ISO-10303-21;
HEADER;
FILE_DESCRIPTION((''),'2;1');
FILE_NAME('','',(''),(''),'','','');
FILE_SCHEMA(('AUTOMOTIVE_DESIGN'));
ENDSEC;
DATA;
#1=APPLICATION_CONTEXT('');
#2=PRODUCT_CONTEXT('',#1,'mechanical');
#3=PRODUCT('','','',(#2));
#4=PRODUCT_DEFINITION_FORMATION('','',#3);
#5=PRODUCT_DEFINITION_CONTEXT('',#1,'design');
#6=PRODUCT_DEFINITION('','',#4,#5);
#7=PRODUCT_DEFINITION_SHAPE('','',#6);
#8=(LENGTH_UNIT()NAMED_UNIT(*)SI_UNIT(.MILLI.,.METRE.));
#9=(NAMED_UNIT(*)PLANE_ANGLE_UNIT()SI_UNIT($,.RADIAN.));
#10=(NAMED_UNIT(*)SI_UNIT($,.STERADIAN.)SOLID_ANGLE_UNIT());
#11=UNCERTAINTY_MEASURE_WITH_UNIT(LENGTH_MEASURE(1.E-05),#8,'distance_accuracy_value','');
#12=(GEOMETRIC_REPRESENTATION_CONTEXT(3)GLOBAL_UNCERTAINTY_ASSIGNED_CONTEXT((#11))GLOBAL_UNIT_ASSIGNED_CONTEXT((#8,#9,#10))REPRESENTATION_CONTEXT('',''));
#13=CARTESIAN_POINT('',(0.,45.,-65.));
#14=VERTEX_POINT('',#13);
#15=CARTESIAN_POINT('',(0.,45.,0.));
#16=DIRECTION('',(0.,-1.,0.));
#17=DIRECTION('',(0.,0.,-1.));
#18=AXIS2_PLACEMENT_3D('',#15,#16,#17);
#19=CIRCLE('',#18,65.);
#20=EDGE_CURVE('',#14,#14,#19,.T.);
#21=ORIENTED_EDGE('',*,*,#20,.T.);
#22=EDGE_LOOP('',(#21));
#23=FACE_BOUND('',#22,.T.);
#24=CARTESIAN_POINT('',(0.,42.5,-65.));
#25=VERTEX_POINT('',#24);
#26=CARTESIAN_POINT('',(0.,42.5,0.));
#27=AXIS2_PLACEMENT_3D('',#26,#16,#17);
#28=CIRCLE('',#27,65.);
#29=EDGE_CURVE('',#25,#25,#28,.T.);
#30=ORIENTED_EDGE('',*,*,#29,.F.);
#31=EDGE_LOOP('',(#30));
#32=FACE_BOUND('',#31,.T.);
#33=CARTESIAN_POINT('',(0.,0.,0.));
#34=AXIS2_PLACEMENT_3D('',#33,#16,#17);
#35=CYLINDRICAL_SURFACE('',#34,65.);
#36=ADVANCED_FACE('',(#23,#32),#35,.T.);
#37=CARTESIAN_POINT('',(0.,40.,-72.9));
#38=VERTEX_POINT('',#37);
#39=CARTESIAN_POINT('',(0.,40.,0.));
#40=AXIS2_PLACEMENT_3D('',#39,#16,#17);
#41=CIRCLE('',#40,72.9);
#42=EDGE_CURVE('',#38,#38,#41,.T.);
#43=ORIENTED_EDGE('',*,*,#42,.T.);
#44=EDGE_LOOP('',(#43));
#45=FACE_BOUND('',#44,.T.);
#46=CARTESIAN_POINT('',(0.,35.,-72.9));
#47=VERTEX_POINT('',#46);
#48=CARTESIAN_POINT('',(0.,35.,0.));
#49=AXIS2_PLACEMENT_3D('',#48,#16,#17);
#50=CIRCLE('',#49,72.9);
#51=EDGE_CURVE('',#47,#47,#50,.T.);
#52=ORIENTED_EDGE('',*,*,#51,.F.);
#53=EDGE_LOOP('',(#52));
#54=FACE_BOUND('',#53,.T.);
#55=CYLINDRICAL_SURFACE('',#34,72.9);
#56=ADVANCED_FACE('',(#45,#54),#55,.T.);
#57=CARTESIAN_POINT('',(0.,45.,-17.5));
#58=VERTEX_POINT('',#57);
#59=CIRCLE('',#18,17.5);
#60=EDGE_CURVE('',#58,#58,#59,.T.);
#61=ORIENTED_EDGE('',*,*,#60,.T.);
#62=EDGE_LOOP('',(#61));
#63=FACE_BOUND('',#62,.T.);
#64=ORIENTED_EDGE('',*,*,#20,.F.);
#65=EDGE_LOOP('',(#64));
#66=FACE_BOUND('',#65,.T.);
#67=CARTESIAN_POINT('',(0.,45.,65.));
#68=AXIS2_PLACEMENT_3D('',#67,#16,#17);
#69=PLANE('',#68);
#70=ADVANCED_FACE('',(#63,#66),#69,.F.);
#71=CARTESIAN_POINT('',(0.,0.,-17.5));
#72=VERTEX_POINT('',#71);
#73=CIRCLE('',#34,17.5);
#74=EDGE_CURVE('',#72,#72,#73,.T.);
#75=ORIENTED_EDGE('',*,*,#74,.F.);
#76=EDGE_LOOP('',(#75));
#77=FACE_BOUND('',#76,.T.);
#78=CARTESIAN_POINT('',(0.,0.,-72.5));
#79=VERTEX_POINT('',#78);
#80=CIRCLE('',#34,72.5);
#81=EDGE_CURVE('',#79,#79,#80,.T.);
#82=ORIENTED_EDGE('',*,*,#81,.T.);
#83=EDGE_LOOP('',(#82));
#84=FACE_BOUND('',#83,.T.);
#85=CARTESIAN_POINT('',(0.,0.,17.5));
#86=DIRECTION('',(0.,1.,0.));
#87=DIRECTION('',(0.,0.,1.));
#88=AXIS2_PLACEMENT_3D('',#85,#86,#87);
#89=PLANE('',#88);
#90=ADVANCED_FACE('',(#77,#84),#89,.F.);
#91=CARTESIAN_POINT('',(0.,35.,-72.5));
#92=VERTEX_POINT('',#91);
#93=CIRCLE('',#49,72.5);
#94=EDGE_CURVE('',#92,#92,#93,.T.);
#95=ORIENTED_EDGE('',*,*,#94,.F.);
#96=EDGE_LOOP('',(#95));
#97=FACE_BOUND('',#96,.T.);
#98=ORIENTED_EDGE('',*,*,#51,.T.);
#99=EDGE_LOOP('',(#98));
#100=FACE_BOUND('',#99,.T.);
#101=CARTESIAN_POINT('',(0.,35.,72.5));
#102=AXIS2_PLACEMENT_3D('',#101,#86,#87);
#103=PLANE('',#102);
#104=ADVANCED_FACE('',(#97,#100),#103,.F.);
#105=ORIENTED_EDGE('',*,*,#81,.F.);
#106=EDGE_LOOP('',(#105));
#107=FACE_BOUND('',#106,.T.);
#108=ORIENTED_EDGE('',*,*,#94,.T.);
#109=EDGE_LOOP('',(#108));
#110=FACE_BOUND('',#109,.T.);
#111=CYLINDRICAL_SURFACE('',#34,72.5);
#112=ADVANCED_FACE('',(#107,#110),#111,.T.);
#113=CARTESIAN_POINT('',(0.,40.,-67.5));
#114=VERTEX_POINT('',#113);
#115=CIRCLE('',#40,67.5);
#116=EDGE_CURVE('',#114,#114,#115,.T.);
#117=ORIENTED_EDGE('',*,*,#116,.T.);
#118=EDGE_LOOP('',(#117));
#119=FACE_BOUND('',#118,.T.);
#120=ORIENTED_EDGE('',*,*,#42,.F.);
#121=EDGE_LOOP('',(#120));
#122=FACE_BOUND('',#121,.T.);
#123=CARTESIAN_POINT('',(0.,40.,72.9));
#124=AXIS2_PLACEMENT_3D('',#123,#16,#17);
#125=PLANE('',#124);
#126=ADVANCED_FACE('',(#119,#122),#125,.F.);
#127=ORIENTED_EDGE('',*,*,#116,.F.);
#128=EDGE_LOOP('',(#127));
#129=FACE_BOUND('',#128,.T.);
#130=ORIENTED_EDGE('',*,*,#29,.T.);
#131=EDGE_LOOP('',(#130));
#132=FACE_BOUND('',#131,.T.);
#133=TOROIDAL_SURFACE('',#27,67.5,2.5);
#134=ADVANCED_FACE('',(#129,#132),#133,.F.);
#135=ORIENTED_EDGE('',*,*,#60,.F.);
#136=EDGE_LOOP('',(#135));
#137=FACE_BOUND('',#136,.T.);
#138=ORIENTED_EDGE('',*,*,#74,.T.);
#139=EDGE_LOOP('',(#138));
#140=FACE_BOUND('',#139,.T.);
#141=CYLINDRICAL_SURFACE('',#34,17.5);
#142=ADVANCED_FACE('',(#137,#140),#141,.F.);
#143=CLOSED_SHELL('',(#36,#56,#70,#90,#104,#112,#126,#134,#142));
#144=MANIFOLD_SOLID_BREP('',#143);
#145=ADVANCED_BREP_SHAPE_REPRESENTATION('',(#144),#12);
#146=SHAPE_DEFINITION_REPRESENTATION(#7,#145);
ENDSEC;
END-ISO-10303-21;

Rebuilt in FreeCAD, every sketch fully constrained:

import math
import FreeCAD as App
import Part
import Sketcher
from FreeCAD import Vector

doc = App.newDocument("Part")
body = doc.addObject("PartDesign::Body", "Body")

# Sketch on YZ plane
sketch1 = doc.addObject("Sketcher::SketchObject", "Sketch")
body.addObject(sketch1)
sketch1.AttachmentSupport = (doc.YZ_Plane, [""])
sketch1.MapMode = "FlatFace"
sketch1.addGeometry([
    Part.LineSegment(Vector(0, 17.5, 0), Vector(45, 17.5, 0)),  # 0
    Part.LineSegment(Vector(45, 17.5, 0), Vector(45, 65, 0)),  # 1
    Part.LineSegment(Vector(45, 65, 0), Vector(42.5, 65, 0)),  # 2
    Part.ArcOfCircle(Part.Circle(Vector(42.5, 67.5, 0), Vector(0, 0, 1), 2.5), math.radians(180), math.radians(270)),  # 3
    Part.LineSegment(Vector(40, 67.5, 0), Vector(40, 72.9, 0)),  # 4
    Part.LineSegment(Vector(40, 72.9, 0), Vector(35, 72.9, 0)),  # 5
    Part.LineSegment(Vector(35, 72.9, 0), Vector(35, 72.5, 0)),  # 6
    Part.LineSegment(Vector(35, 72.5, 0), Vector(0, 72.5, 0)),  # 7
    Part.LineSegment(Vector(0, 72.5, 0), Vector(0, 17.5, 0)),  # 8
], False)
sketch1.addConstraint([
    Sketcher.Constraint("Coincident", 0, 2, 1, 1),
    Sketcher.Constraint("Coincident", 1, 2, 2, 1),
    Sketcher.Constraint("Tangent", 2, 2, 3, 2),
    Sketcher.Constraint("Tangent", 3, 1, 4, 1),
    Sketcher.Constraint("Coincident", 4, 2, 5, 1),
    Sketcher.Constraint("Coincident", 5, 2, 6, 1),
    Sketcher.Constraint("Coincident", 6, 2, 7, 1),
    Sketcher.Constraint("Coincident", 7, 2, 8, 1),
    Sketcher.Constraint("Coincident", 8, 2, 0, 1),
    Sketcher.Constraint("Horizontal", 0),
    Sketcher.Constraint("Vertical", 1),
    Sketcher.Constraint("Horizontal", 2),
    Sketcher.Constraint("Vertical", 4),
    Sketcher.Constraint("Horizontal", 5),
    Sketcher.Constraint("Vertical", 6),
    Sketcher.Constraint("Horizontal", 7),
    Sketcher.Constraint("Vertical", 8),
    Sketcher.Constraint("PointOnObject", 7, 2, -2),
    Sketcher.Constraint("Radius", 3, 2.5),
    Sketcher.Constraint("DistanceX", 0, 1, 0, 2, 45.0),
    Sketcher.Constraint("DistanceX", 5, 2, 5, 1, 5.0),
    Sketcher.Constraint("DistanceX", 7, 2, 7, 1, 35.0),
    Sketcher.Constraint("DistanceY", 8, 2, 8, 1, 55.0),
    Sketcher.Constraint("DistanceY", 1, 1, 1, 2, 47.5),
    Sketcher.Constraint("DistanceY", 4, 1, 4, 2, 5.4),
    Sketcher.Constraint("DistanceY", -1, 1, 1, 2, 65.0),
])
revolution = doc.addObject("PartDesign::Revolution", "Revolution")
body.addObject(revolution)
revolution.Profile = sketch1
revolution.ReferenceAxis = (sketch1, ["H_Axis"])
revolution.Angle = 360

doc.recompute()
